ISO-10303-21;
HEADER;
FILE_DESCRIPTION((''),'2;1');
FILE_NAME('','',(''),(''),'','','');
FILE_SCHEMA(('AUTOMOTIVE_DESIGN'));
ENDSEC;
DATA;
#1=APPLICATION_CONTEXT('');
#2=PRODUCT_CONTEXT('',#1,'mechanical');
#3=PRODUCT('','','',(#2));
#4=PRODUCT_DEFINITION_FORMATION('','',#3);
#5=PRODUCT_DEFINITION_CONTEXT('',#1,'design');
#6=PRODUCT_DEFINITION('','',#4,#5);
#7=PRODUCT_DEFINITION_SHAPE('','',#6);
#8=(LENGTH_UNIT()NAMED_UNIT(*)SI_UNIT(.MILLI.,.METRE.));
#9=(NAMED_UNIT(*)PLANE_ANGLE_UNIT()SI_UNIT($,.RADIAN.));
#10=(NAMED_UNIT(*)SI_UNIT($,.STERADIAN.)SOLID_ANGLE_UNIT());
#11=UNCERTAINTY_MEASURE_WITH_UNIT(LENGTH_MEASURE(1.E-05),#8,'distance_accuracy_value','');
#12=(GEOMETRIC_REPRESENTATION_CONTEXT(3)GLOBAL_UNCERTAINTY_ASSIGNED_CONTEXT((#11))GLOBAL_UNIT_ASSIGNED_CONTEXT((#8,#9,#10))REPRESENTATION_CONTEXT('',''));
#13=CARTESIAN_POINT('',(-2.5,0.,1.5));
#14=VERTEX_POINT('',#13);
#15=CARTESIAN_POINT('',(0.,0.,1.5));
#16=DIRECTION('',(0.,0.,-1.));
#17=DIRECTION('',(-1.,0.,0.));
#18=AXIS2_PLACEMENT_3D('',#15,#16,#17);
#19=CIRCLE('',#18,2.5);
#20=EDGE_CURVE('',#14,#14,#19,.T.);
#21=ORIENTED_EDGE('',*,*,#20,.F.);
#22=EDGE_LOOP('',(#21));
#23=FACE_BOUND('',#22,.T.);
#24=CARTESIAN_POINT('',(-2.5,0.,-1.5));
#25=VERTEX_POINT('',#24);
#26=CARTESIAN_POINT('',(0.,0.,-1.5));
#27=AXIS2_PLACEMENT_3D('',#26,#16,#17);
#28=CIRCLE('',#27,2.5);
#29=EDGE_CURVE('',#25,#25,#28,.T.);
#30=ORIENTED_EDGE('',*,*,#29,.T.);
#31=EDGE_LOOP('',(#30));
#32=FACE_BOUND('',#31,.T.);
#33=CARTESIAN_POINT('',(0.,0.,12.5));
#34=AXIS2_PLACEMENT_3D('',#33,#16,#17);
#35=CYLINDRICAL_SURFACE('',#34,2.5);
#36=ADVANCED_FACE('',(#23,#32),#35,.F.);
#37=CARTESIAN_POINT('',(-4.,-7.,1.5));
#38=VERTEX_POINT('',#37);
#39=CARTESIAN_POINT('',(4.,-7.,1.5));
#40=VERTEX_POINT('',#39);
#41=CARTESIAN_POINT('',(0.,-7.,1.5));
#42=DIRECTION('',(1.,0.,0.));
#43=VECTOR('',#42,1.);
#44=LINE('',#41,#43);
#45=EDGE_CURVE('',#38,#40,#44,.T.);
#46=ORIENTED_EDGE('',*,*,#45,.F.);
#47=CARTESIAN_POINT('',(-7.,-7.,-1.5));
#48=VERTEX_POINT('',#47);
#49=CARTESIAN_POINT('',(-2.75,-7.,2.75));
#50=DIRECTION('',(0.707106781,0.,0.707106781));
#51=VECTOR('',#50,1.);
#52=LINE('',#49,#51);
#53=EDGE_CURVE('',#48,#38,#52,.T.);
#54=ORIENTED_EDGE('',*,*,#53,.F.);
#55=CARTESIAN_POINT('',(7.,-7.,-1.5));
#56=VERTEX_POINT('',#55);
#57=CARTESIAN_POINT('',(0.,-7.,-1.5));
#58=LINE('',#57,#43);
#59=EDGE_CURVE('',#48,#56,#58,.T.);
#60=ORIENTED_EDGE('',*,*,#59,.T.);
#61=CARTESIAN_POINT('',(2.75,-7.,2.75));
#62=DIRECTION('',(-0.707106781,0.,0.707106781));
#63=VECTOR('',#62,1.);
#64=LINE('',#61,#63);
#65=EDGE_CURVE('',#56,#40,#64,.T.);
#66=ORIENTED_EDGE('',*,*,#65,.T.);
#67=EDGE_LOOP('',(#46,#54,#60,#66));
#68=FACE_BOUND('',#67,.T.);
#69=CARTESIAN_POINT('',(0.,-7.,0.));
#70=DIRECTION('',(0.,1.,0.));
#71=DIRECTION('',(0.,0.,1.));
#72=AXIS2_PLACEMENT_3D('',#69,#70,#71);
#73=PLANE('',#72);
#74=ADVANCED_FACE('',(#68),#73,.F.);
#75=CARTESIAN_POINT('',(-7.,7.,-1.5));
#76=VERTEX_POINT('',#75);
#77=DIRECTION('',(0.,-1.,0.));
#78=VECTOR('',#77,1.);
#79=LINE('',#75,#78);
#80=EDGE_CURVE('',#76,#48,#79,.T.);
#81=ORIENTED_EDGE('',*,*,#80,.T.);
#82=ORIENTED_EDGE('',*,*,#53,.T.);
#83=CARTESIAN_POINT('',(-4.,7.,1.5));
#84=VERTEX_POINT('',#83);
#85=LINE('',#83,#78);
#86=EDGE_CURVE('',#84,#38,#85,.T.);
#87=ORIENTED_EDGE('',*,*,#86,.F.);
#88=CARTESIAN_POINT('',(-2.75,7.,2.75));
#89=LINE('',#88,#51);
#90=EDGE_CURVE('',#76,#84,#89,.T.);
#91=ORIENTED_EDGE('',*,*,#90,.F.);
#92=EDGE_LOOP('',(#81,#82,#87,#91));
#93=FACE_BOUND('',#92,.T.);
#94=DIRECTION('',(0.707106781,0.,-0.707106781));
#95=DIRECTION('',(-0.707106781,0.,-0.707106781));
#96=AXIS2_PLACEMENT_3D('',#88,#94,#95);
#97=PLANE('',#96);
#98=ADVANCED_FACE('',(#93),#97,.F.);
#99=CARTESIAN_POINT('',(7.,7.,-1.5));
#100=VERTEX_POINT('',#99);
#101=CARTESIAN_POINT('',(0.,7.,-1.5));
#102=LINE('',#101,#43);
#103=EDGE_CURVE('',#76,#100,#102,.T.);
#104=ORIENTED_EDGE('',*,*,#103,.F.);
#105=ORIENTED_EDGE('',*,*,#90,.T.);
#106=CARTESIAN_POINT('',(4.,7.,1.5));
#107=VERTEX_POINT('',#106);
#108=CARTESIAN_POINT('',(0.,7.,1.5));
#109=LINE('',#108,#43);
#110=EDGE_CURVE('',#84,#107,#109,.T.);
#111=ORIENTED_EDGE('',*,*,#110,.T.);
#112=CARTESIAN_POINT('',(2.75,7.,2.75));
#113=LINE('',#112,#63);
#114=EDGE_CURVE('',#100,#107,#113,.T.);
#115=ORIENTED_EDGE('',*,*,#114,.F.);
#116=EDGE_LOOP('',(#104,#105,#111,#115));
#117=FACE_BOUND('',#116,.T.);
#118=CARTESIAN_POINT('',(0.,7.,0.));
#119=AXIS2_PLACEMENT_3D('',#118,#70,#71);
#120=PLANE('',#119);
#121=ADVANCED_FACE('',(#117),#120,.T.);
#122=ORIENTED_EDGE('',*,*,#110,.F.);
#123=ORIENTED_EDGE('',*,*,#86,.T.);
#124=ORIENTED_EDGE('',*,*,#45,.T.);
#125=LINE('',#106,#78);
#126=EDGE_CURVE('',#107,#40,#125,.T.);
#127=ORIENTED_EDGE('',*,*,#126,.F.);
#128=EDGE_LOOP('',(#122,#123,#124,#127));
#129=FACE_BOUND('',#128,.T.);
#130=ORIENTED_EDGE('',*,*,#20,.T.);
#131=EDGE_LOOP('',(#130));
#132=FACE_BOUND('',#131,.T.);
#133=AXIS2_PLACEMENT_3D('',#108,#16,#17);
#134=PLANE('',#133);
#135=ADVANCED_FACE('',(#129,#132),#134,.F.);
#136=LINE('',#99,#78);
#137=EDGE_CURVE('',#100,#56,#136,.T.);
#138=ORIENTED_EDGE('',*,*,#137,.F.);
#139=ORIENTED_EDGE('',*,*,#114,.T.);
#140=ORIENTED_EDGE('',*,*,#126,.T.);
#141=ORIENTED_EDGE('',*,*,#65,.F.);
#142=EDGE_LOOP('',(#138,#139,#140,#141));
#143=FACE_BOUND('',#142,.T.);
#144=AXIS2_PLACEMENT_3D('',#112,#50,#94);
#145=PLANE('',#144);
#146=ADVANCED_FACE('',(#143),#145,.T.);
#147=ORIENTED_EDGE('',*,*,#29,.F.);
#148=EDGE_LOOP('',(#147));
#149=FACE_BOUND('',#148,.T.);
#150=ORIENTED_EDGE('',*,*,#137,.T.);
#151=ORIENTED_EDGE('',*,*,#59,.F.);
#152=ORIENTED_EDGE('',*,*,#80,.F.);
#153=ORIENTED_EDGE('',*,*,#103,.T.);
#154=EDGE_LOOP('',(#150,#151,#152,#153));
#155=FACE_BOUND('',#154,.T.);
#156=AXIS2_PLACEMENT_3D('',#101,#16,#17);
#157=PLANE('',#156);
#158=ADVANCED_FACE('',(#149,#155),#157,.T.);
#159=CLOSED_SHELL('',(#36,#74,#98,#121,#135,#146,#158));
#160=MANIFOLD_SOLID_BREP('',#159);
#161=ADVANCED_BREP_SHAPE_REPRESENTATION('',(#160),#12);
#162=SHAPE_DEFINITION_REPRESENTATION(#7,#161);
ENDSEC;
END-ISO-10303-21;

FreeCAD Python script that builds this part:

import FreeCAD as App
import Part
import Sketcher
Q = App.Units.Quantity

doc = App.newDocument("Part")
body = doc.addObject("PartDesign::Body", "Body")

# Sketch on XZ plane
sketch1 = doc.addObject("Sketcher::SketchObject", "Sketch")
body.addObject(sketch1)
sketch1.AttachmentSupport = (doc.XZ_Plane, [""])
sketch1.MapMode = "FlatFace"
sketch1.addGeometry(Part.LineSegment(App.Vector(7, -1.5, 0), App.Vector(-7, -1.5, 0)), False)
sketch1.addGeometry(Part.LineSegment(App.Vector(-7, -1.5, 0), App.Vector(-4, 1.5, 0)), False)
sketch1.addGeometry(Part.LineSegment(App.Vector(-4, 1.5, 0), App.Vector(4, 1.5, 0)), False)
sketch1.addGeometry(Part.LineSegment(App.Vector(4, 1.5, 0), App.Vector(7, -1.5, 0)), False)
sketch1.addConstraint(Sketcher.Constraint("Coincident", 0, 2, 1, 1))
sketch1.addConstraint(Sketcher.Constraint("Coincident", 1, 2, 2, 1))
sketch1.addConstraint(Sketcher.Constraint("Coincident", 2, 2, 3, 1))
sketch1.addConstraint(Sketcher.Constraint("Coincident", 3, 2, 0, 1))
sketch1.addConstraint(Sketcher.Constraint("Horizontal", 0))
sketch1.addConstraint(Sketcher.Constraint("Horizontal", 2))
sketch1.addConstraint(Sketcher.Constraint("Perpendicular", 1, 3))
sketch1.addConstraint(Sketcher.Constraint("Equal", 1, 3))
sketch1.addConstraint(Sketcher.Constraint("DistanceX", 0, 2, 0, 1, Q("14 mm")))
sketch1.addConstraint(Sketcher.Constraint("DistanceX", 2, 1, 2, 2, Q("8 mm")))
sketch1.addConstraint(Sketcher.Constraint("DistanceX", 0, 2, -1, 1, Q("7 mm")))
sketch1.addConstraint(Sketcher.Constraint("DistanceY", 0, 2, -1, 1, Q("1.5 mm")))
pad1 = doc.addObject("PartDesign::Pad", "Pad")
body.addObject(pad1)
pad1.Profile = sketch1
pad1.Length = 14
pad1.Midplane = True

# Sketch on XY plane
sketch2 = doc.addObject("Sketcher::SketchObject", "Sketch001")
body.addObject(sketch2)
sketch2.AttachmentSupport = (doc.XY_Plane, [""])
sketch2.MapMode = "FlatFace"
sketch2.AttachmentOffset = App.Placement(App.Vector(0, 0, -1.5), App.Rotation())
sketch2.addGeometry(Part.Circle(App.Vector(0, 0, 0), App.Vector(0, 0, 1), 2.5), False)
sketch2.addConstraint(Sketcher.Constraint("Coincident", 0, 3, -1, 1))
sketch2.addConstraint(Sketcher.Constraint("Diameter", 0, Q("5 mm")))
pocket1 = doc.addObject("PartDesign::Pocket", "Pocket")
body.addObject(pocket1)
pocket1.Profile = sketch2
pocket1.Length = 14
pocket1.Reversed = True

doc.recompute()
